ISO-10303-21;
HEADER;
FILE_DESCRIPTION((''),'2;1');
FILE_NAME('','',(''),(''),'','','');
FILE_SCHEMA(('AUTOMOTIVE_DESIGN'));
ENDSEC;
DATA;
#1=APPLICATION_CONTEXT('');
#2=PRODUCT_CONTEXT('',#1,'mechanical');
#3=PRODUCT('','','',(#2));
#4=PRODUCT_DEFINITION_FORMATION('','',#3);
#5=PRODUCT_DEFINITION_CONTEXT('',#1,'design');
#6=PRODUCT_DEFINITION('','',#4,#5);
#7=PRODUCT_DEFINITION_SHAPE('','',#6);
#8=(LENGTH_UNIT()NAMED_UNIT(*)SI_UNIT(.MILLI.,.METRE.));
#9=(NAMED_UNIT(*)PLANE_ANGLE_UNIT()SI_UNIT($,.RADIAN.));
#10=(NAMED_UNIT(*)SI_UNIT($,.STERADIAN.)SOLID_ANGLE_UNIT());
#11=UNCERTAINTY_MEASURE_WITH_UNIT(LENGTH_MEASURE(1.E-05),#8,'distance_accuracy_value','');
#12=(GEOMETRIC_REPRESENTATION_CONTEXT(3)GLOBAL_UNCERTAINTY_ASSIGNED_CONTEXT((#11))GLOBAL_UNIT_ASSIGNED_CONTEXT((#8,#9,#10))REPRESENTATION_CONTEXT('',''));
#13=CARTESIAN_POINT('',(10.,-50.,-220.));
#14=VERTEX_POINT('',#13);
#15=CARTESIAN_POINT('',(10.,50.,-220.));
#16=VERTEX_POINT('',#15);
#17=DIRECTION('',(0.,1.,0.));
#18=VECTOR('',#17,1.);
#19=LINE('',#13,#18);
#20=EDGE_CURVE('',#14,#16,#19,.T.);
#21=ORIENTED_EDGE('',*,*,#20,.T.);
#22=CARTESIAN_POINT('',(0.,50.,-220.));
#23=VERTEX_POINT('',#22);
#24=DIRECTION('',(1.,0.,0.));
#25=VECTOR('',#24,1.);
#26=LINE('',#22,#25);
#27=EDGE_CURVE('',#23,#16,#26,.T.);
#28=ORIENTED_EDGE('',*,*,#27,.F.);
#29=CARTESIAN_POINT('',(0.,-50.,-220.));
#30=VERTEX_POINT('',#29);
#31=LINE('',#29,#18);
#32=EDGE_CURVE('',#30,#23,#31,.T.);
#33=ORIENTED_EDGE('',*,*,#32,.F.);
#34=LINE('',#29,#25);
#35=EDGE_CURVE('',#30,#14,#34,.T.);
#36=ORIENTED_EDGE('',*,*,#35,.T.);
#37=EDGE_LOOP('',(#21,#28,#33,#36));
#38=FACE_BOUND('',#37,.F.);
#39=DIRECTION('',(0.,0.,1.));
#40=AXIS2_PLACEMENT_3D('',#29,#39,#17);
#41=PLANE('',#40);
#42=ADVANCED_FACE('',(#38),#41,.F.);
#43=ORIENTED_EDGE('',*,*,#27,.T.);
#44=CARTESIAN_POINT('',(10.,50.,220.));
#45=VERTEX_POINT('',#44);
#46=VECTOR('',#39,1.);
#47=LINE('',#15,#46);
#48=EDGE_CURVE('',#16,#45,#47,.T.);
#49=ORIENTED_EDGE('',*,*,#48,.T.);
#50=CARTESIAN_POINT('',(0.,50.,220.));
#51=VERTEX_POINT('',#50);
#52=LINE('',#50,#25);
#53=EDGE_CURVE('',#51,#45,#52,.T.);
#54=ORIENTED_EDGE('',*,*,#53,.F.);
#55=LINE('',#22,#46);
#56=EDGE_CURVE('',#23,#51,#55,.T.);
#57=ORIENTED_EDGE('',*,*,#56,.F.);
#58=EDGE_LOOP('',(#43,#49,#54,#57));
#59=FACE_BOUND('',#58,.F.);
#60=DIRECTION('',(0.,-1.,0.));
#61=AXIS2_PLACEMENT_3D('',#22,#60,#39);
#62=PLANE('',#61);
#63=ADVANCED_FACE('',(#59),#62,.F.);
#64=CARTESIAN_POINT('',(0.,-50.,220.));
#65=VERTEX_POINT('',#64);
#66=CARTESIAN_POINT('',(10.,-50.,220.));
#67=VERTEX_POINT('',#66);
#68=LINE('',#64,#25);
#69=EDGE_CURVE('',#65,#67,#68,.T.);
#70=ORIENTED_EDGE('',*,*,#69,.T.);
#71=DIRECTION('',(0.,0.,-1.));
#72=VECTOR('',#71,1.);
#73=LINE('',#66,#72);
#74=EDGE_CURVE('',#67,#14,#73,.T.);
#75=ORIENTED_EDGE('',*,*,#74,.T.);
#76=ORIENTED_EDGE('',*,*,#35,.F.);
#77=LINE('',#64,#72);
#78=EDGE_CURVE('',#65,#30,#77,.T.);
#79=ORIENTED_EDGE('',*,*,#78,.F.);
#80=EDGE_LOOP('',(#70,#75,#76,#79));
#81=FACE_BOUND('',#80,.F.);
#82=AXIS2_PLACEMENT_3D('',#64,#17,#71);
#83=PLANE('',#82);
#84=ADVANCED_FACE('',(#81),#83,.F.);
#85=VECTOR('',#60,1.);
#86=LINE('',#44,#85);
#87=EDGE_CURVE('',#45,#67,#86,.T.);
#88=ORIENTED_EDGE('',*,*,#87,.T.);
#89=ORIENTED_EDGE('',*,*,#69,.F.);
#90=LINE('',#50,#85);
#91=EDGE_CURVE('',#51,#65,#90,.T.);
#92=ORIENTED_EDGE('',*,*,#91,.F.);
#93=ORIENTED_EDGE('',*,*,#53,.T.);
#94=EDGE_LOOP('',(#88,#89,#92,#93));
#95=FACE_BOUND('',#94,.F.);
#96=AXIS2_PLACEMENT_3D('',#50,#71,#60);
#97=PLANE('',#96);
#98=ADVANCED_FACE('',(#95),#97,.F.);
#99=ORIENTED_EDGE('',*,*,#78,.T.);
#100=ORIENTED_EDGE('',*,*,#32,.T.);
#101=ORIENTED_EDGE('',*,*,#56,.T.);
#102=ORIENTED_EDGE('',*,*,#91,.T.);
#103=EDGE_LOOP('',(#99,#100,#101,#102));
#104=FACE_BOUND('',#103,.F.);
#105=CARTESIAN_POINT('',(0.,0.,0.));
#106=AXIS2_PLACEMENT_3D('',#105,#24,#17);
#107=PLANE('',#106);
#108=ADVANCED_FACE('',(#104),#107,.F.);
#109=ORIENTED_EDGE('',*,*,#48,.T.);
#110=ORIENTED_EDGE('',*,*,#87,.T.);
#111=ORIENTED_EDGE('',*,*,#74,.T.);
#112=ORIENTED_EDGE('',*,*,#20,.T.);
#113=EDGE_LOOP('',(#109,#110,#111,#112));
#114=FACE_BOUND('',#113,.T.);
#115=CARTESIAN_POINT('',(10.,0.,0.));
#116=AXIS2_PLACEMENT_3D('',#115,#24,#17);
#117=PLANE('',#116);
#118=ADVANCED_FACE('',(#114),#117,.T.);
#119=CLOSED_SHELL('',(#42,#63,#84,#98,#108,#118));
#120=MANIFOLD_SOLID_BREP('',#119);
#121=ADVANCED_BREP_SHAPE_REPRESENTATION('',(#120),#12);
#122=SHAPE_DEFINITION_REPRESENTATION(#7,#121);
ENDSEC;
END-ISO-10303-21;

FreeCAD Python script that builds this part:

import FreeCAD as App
import Part
import Sketcher
Q = App.Units.Quantity

doc = App.newDocument("Part")
params = doc.addObject("Spreadsheet::Sheet", "Params")
for row, (alias, value) in enumerate([
    ("sketch1_width", "100 mm"),
    ("sketch1_height", "440 mm"),
    ("pad1_length", "10 mm"),
], start=1):
    params.set(f"A{row}", alias)
    params.set(f"B{row}", "=" + value)
    params.setAlias(f"B{row}", alias)

body = doc.addObject("PartDesign::Body", "Body")

# Sketch on YZ plane
sketch1 = body.newObject("Sketcher::SketchObject", "Sketch")
sketch1.AttachmentSupport = (doc.getObject("YZ_Plane"), [""])
sketch1.MapMode = "FlatFace"
sketch1.addGeometry(Part.LineSegment(App.Vector(-50, 220, 0), App.Vector(-50, -220, 0)), False)
sketch1.addGeometry(Part.LineSegment(App.Vector(-50, -220, 0), App.Vector(50, -220, 0)), False)
sketch1.addGeometry(Part.LineSegment(App.Vector(50, -220, 0), App.Vector(50, 220, 0)), False)
sketch1.addGeometry(Part.LineSegment(App.Vector(50, 220, 0), App.Vector(-50, 220, 0)), False)
sketch1.addConstraint(Sketcher.Constraint("Coincident", 0, 2, 1, 1))
sketch1.addConstraint(Sketcher.Constraint("Coincident", 1, 2, 2, 1))
sketch1.addConstraint(Sketcher.Constraint("Coincident", 2, 2, 3, 1))
sketch1.addConstraint(Sketcher.Constraint("Coincident", 3, 2, 0, 1))
sketch1.addConstraint(Sketcher.Constraint("Vertical", 0))
sketch1.addConstraint(Sketcher.Constraint("Horizontal", 1))
sketch1.addConstraint(Sketcher.Constraint("Vertical", 2))
sketch1.addConstraint(Sketcher.Constraint("Horizontal", 3))
sketch1.addConstraint(Sketcher.Constraint("Symmetric", 0, 2, 2, 2, -1, 1))
sketch1.addConstraint(Sketcher.Constraint("DistanceX", 1, 1, 1, 2, Q("100 mm")))
sketch1.addConstraint(Sketcher.Constraint("DistanceY", 0, 2, 0, 1, Q("440 mm")))
sketch1.setExpression("Constraints[9]", "Params.sketch1_width")
sketch1.setExpression("Constraints[10]", "Params.sketch1_height")
pad1 = body.newObject("PartDesign::Pad", "Pad")
pad1.Profile = sketch1
pad1.setExpression("Length", "Params.pad1_length")

doc.recompute()
